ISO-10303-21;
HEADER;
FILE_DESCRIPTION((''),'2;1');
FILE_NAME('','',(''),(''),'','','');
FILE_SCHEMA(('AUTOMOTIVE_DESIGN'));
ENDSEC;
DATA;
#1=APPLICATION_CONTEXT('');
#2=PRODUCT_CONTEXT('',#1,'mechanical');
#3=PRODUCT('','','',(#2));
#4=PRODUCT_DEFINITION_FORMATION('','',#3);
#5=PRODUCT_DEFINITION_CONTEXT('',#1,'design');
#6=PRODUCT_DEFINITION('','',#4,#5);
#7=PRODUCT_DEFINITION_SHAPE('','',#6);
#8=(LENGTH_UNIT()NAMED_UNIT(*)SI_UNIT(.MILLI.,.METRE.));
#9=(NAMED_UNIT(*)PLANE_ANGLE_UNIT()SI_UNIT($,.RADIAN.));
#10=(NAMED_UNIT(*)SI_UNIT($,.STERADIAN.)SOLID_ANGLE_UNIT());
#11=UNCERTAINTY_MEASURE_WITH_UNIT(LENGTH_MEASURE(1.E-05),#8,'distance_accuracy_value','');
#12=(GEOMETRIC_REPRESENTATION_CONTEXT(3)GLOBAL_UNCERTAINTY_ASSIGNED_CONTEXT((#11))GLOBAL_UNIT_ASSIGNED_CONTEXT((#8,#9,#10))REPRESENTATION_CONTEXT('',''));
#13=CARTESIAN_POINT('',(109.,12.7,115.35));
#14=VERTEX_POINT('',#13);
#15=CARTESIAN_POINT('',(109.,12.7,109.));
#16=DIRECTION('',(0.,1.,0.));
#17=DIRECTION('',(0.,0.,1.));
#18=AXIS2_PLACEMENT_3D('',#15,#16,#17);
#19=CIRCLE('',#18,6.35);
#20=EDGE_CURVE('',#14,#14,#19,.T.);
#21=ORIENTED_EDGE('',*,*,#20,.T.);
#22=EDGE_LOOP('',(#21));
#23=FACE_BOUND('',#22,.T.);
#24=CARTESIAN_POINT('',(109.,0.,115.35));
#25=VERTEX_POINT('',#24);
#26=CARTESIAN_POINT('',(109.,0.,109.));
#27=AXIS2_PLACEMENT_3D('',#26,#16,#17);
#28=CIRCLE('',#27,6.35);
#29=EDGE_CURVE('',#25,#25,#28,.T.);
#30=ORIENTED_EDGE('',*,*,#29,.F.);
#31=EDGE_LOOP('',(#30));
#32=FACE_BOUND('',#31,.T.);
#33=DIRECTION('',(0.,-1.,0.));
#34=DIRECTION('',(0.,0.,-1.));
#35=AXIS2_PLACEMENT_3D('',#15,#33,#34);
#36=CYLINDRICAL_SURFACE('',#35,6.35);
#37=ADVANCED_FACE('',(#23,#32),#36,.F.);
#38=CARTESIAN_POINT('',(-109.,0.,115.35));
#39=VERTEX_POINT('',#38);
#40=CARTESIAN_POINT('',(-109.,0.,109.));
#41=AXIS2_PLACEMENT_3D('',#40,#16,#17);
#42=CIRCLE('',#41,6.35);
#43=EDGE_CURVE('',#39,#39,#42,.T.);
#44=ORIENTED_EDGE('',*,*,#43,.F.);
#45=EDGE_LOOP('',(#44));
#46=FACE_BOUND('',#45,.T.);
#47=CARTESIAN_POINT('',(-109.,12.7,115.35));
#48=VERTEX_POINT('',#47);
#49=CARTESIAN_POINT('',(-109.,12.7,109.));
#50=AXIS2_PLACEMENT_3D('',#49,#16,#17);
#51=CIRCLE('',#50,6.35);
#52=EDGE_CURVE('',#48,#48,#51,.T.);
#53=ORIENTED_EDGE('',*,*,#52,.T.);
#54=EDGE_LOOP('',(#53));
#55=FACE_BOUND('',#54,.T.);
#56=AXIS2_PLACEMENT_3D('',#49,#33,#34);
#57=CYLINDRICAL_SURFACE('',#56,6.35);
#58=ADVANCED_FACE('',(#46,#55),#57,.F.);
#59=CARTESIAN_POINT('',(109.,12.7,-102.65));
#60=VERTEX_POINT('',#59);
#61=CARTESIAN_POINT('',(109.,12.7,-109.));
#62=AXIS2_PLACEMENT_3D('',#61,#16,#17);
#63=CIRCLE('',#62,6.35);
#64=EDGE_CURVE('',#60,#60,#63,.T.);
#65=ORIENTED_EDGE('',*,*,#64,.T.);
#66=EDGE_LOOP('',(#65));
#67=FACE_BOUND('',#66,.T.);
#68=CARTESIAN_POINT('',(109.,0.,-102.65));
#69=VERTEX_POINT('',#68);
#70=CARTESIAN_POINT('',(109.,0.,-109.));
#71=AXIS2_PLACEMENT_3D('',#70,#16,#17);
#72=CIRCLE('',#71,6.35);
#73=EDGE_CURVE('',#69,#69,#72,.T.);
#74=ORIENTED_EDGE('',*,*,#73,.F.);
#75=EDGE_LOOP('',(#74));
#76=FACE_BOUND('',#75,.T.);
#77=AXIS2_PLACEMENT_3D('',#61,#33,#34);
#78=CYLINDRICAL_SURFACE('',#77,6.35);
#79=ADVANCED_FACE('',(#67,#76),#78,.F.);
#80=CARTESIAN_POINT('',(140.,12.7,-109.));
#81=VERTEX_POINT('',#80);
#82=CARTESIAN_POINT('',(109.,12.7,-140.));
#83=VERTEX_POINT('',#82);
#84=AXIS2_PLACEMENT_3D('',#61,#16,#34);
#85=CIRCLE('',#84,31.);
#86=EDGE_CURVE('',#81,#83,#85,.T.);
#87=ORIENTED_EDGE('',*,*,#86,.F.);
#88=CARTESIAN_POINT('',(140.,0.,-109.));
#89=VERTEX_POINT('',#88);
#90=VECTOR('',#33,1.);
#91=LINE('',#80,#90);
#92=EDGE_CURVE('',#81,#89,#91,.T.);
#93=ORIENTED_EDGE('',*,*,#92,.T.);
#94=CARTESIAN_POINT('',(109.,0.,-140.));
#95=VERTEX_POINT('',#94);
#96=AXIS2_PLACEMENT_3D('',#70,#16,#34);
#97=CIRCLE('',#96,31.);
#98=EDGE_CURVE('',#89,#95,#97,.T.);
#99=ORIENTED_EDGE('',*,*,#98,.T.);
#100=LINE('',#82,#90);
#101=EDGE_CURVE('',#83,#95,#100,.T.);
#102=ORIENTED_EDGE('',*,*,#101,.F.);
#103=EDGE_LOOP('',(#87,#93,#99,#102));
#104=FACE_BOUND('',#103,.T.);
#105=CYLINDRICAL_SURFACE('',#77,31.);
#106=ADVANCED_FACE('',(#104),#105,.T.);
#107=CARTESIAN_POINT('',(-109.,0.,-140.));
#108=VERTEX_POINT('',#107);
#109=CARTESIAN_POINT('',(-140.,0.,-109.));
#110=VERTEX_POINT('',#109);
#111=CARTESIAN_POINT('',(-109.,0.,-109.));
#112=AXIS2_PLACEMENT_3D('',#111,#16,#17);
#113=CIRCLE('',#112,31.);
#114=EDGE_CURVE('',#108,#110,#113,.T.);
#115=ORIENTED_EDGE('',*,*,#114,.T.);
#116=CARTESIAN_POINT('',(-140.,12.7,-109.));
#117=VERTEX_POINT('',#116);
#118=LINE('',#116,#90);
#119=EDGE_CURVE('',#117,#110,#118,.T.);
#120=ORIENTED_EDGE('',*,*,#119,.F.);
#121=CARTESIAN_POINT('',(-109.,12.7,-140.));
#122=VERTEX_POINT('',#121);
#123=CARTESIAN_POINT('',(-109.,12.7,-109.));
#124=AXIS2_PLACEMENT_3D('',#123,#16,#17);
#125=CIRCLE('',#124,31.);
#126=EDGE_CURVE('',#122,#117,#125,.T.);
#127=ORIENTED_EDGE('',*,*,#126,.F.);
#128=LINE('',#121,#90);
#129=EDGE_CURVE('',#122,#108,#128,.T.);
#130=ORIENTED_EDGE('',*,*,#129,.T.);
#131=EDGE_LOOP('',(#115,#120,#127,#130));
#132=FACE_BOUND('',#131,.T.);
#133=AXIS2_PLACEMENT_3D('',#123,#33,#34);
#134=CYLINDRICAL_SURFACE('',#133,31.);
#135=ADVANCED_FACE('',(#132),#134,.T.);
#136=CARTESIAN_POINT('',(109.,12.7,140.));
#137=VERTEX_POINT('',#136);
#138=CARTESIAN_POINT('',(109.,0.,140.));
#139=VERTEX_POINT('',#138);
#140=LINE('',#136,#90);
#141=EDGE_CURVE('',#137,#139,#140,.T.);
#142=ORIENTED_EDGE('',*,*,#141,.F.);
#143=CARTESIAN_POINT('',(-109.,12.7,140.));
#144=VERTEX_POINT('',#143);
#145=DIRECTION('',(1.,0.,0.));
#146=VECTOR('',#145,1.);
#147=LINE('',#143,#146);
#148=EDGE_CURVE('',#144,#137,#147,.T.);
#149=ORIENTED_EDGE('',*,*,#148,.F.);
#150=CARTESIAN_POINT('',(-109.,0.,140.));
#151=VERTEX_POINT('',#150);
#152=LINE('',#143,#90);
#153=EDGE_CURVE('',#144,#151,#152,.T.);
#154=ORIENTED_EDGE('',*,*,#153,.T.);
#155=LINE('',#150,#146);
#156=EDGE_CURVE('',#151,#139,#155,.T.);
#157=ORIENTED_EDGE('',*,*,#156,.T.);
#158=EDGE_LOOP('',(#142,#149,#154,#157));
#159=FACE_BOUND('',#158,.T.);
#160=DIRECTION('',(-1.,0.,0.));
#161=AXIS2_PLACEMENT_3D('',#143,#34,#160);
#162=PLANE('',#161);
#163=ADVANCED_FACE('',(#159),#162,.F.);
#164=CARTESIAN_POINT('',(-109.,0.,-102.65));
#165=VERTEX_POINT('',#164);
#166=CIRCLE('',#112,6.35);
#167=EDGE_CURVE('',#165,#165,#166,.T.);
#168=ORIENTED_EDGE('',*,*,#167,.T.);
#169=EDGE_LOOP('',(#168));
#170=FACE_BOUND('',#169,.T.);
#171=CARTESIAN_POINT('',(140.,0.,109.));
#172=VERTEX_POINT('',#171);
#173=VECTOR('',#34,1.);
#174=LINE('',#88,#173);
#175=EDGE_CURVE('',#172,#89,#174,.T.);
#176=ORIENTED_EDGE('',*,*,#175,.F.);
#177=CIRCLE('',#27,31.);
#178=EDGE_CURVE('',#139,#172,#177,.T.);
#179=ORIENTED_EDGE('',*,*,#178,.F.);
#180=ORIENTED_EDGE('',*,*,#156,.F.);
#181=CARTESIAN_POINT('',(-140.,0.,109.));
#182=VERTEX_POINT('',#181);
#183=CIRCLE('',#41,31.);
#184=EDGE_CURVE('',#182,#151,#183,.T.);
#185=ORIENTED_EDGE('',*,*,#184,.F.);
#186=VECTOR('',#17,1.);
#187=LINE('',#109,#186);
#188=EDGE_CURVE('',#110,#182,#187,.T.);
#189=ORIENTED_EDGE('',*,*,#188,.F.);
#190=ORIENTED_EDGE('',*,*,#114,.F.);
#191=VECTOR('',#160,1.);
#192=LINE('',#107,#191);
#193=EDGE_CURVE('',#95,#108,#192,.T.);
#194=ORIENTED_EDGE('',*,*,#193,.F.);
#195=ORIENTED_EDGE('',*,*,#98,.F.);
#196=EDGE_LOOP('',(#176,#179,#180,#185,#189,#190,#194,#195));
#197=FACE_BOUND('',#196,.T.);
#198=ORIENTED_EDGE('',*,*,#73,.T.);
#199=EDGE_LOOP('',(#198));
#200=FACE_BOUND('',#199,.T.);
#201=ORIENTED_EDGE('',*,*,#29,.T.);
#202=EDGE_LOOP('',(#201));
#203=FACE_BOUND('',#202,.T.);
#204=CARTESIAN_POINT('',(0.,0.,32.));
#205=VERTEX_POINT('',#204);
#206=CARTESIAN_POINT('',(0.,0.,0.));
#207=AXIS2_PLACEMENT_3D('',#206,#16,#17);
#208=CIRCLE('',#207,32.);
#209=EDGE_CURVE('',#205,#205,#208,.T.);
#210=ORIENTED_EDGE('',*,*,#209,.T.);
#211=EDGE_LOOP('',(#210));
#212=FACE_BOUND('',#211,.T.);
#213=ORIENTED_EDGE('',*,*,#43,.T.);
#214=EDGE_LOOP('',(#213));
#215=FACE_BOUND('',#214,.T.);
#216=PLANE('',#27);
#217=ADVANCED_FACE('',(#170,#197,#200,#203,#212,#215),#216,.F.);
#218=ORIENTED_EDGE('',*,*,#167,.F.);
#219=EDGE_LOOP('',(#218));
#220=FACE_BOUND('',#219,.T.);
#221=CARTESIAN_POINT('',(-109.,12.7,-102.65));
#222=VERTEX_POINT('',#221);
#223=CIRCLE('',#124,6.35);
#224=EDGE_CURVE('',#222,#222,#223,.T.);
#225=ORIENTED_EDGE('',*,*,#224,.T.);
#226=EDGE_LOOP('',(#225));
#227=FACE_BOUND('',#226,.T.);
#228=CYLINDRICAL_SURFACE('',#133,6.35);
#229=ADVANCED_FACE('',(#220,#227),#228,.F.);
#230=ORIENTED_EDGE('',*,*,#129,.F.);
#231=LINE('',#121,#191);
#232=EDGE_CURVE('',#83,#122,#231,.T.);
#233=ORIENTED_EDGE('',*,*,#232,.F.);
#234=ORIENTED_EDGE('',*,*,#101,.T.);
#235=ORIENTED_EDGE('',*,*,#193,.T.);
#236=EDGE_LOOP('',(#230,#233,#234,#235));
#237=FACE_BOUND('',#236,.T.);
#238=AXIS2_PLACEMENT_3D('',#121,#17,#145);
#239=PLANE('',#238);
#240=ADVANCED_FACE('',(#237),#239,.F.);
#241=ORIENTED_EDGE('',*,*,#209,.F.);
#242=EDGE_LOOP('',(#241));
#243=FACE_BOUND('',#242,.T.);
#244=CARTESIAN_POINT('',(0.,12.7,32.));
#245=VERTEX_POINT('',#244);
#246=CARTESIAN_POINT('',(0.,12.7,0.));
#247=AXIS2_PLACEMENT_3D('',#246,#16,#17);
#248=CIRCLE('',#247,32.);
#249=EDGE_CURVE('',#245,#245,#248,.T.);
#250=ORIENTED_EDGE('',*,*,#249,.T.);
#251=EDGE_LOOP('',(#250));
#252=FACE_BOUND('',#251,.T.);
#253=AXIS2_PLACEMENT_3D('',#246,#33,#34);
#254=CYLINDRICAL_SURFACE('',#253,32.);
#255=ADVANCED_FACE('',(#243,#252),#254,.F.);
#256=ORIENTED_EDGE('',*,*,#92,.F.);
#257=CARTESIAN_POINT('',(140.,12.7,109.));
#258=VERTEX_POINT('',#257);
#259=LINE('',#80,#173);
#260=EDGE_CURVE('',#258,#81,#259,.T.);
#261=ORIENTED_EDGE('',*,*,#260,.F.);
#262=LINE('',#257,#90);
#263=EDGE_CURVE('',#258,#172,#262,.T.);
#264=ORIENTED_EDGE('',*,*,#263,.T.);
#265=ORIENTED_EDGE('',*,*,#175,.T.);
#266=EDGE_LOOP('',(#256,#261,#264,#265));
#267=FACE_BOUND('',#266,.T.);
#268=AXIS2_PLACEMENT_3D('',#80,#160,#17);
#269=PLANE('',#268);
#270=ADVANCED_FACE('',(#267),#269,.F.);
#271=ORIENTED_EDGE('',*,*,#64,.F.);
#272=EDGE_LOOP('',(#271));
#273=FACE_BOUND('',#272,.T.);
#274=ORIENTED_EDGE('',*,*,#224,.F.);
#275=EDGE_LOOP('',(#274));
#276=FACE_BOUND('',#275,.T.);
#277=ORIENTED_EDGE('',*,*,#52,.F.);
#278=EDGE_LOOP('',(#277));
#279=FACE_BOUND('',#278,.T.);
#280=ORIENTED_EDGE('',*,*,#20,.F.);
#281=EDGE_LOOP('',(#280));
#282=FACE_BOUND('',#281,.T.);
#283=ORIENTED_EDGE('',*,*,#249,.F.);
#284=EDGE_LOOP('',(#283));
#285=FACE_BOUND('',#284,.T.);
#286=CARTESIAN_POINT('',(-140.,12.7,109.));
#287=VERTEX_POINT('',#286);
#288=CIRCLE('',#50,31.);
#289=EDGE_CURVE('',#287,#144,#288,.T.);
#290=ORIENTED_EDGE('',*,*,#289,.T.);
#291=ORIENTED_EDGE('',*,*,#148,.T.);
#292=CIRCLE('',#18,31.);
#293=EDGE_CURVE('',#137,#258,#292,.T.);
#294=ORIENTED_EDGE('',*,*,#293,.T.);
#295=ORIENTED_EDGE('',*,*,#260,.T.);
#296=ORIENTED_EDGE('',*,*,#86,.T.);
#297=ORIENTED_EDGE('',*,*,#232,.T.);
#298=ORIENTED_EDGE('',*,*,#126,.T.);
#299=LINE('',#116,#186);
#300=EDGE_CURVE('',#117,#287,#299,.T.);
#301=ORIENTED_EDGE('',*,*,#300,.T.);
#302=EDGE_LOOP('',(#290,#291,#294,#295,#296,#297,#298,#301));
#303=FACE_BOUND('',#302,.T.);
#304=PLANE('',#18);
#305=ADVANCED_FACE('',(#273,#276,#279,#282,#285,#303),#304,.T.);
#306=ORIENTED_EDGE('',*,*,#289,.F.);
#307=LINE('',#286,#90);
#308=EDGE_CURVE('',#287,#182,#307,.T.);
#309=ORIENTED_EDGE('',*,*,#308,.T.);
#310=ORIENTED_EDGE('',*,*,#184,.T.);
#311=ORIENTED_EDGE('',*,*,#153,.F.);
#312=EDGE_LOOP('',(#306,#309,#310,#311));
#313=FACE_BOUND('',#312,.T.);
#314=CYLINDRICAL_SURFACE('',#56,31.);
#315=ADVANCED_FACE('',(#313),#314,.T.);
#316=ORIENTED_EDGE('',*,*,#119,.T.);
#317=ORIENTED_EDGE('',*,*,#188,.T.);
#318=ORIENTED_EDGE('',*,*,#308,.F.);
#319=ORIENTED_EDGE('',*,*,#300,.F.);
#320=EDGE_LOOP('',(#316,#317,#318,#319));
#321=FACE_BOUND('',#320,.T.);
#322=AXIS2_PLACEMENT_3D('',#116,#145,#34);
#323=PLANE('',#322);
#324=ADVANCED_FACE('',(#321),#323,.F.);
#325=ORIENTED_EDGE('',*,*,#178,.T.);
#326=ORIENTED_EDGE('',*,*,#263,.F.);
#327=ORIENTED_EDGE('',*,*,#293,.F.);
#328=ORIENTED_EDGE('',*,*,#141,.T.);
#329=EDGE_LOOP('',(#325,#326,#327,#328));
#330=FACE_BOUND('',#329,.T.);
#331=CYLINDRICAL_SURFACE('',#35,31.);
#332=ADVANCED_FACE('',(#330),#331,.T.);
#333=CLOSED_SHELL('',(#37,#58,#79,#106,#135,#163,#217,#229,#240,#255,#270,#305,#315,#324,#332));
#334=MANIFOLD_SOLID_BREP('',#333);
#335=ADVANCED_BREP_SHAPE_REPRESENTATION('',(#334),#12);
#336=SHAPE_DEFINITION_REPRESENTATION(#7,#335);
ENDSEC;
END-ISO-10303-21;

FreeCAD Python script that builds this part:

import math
import FreeCAD as App
import Part
import Sketcher
Q = App.Units.Quantity

doc = App.newDocument("Part")
params = doc.addObject("Spreadsheet::Sheet", "Params")
for row, (alias, value) in enumerate([
    ("sketch1_diameter", "64 mm"),
    ("sketch1_radius", "31 mm"),
    ("sketch1_diameter2", "12.7 mm"),
    ("sketch1_width", "218 mm"),
    ("pad1_length", "12.7 mm"),
], start=1):
    params.set(f"A{row}", alias)
    params.set(f"B{row}", "=" + value)
    params.setAlias(f"B{row}", alias)

body = doc.addObject("PartDesign::Body", "Body")

sketch1 = doc.addObject("Sketcher::SketchObject", "Sketch")
body.addObject(sketch1)
sketch1.AttachmentSupport = (doc.XZ_Plane, [""])
sketch1.MapMode = "FlatFace"
sketch1.addGeometry([
    Part.LineSegment(App.Vector(109, -140, 0), App.Vector(-109, -140, 0)),
    Part.ArcOfCircle(Part.Circle(App.Vector(-109, -109, 0), App.Vector(0, 0, 1), 31), math.radians(180), math.radians(270)),
    Part.LineSegment(App.Vector(-140, -109, 0), App.Vector(-140, 109, 0)),
    Part.ArcOfCircle(Part.Circle(App.Vector(-109, 109, 0), App.Vector(0, 0, 1), 31), math.radians(90), math.radians(180)),
    Part.LineSegment(App.Vector(-109, 140, 0), App.Vector(109, 140, 0)),
    Part.ArcOfCircle(Part.Circle(App.Vector(109, 109, 0), App.Vector(0, 0, 1), 31), math.radians(0), math.radians(90)),
    Part.LineSegment(App.Vector(140, 109, 0), App.Vector(140, -109, 0)),
    Part.ArcOfCircle(Part.Circle(App.Vector(109, -109, 0), App.Vector(0, 0, 1), 31), math.radians(-90), math.radians(0)),
    Part.Circle(App.Vector(109, 109, 0), App.Vector(0, 0, 1), 6.35),
    Part.Circle(App.Vector(0, 0, 0), App.Vector(0, 0, 1), 32),
    Part.Circle(App.Vector(-109, 109, 0), App.Vector(0, 0, 1), 6.35),
    Part.Circle(App.Vector(109, -109, 0), App.Vector(0, 0, 1), 6.35),
    Part.Circle(App.Vector(-109, -109, 0), App.Vector(0, 0, 1), 6.35),
], False)
sketch1.addConstraint([
    Sketcher.Constraint("Tangent", 0, 2, 1, 2),
    Sketcher.Constraint("Tangent", 1, 1, 2, 1),
    Sketcher.Constraint("Tangent", 2, 2, 3, 2),
    Sketcher.Constraint("Tangent", 3, 1, 4, 1),
    Sketcher.Constraint("Tangent", 4, 2, 5, 2),
    Sketcher.Constraint("Tangent", 5, 1, 6, 1),
    Sketcher.Constraint("Tangent", 6, 2, 7, 2),
    Sketcher.Constraint("Tangent", 7, 1, 0, 1),
    Sketcher.Constraint("Horizontal", 0),
    Sketcher.Constraint("Vertical", 2),
    Sketcher.Constraint("Horizontal", 4),
    Sketcher.Constraint("Vertical", 6),
    Sketcher.Constraint("Coincident", 9, 3, -1, 1),
    Sketcher.Constraint("Coincident", 8, 3, 5, 3),
    Sketcher.Constraint("Coincident", 10, 3, 3, 3),
    Sketcher.Constraint("Coincident", 11, 3, 7, 3),
    Sketcher.Constraint("Coincident", 12, 3, 1, 3),
    Sketcher.Constraint("Equal", 1, 3),
    Sketcher.Constraint("Equal", 3, 5),
    Sketcher.Constraint("Equal", 5, 7),
    Sketcher.Constraint("Equal", 8, 10),
    Sketcher.Constraint("Equal", 10, 11),
    Sketcher.Constraint("Equal", 11, 12),
    Sketcher.Constraint("Symmetric", 1, 3, 5, 3, -1, 1),
    Sketcher.Constraint("Equal", 4, 2),
    Sketcher.Constraint("Diameter", 9, Q("64 mm")),
    Sketcher.Constraint("Radius", 1, Q("31 mm")),
    Sketcher.Constraint("Diameter", 8, Q("12.7 mm")),
    Sketcher.Constraint("DistanceX", 0, 2, 0, 1, Q("218 mm")),
])
sketch1.setExpression("Constraints[25]", "Params.sketch1_diameter")
sketch1.setExpression("Constraints[26]", "Params.sketch1_radius")
sketch1.setExpression("Constraints[27]", "Params.sketch1_diameter2")
sketch1.setExpression("Constraints[28]", "Params.sketch1_width")
pad1 = doc.addObject("PartDesign::Pad", "Pad")
body.addObject(pad1)
pad1.Profile = sketch1
pad1.setExpression("Length", "Params.pad1_length")
pad1.Reversed = True

doc.recompute()
